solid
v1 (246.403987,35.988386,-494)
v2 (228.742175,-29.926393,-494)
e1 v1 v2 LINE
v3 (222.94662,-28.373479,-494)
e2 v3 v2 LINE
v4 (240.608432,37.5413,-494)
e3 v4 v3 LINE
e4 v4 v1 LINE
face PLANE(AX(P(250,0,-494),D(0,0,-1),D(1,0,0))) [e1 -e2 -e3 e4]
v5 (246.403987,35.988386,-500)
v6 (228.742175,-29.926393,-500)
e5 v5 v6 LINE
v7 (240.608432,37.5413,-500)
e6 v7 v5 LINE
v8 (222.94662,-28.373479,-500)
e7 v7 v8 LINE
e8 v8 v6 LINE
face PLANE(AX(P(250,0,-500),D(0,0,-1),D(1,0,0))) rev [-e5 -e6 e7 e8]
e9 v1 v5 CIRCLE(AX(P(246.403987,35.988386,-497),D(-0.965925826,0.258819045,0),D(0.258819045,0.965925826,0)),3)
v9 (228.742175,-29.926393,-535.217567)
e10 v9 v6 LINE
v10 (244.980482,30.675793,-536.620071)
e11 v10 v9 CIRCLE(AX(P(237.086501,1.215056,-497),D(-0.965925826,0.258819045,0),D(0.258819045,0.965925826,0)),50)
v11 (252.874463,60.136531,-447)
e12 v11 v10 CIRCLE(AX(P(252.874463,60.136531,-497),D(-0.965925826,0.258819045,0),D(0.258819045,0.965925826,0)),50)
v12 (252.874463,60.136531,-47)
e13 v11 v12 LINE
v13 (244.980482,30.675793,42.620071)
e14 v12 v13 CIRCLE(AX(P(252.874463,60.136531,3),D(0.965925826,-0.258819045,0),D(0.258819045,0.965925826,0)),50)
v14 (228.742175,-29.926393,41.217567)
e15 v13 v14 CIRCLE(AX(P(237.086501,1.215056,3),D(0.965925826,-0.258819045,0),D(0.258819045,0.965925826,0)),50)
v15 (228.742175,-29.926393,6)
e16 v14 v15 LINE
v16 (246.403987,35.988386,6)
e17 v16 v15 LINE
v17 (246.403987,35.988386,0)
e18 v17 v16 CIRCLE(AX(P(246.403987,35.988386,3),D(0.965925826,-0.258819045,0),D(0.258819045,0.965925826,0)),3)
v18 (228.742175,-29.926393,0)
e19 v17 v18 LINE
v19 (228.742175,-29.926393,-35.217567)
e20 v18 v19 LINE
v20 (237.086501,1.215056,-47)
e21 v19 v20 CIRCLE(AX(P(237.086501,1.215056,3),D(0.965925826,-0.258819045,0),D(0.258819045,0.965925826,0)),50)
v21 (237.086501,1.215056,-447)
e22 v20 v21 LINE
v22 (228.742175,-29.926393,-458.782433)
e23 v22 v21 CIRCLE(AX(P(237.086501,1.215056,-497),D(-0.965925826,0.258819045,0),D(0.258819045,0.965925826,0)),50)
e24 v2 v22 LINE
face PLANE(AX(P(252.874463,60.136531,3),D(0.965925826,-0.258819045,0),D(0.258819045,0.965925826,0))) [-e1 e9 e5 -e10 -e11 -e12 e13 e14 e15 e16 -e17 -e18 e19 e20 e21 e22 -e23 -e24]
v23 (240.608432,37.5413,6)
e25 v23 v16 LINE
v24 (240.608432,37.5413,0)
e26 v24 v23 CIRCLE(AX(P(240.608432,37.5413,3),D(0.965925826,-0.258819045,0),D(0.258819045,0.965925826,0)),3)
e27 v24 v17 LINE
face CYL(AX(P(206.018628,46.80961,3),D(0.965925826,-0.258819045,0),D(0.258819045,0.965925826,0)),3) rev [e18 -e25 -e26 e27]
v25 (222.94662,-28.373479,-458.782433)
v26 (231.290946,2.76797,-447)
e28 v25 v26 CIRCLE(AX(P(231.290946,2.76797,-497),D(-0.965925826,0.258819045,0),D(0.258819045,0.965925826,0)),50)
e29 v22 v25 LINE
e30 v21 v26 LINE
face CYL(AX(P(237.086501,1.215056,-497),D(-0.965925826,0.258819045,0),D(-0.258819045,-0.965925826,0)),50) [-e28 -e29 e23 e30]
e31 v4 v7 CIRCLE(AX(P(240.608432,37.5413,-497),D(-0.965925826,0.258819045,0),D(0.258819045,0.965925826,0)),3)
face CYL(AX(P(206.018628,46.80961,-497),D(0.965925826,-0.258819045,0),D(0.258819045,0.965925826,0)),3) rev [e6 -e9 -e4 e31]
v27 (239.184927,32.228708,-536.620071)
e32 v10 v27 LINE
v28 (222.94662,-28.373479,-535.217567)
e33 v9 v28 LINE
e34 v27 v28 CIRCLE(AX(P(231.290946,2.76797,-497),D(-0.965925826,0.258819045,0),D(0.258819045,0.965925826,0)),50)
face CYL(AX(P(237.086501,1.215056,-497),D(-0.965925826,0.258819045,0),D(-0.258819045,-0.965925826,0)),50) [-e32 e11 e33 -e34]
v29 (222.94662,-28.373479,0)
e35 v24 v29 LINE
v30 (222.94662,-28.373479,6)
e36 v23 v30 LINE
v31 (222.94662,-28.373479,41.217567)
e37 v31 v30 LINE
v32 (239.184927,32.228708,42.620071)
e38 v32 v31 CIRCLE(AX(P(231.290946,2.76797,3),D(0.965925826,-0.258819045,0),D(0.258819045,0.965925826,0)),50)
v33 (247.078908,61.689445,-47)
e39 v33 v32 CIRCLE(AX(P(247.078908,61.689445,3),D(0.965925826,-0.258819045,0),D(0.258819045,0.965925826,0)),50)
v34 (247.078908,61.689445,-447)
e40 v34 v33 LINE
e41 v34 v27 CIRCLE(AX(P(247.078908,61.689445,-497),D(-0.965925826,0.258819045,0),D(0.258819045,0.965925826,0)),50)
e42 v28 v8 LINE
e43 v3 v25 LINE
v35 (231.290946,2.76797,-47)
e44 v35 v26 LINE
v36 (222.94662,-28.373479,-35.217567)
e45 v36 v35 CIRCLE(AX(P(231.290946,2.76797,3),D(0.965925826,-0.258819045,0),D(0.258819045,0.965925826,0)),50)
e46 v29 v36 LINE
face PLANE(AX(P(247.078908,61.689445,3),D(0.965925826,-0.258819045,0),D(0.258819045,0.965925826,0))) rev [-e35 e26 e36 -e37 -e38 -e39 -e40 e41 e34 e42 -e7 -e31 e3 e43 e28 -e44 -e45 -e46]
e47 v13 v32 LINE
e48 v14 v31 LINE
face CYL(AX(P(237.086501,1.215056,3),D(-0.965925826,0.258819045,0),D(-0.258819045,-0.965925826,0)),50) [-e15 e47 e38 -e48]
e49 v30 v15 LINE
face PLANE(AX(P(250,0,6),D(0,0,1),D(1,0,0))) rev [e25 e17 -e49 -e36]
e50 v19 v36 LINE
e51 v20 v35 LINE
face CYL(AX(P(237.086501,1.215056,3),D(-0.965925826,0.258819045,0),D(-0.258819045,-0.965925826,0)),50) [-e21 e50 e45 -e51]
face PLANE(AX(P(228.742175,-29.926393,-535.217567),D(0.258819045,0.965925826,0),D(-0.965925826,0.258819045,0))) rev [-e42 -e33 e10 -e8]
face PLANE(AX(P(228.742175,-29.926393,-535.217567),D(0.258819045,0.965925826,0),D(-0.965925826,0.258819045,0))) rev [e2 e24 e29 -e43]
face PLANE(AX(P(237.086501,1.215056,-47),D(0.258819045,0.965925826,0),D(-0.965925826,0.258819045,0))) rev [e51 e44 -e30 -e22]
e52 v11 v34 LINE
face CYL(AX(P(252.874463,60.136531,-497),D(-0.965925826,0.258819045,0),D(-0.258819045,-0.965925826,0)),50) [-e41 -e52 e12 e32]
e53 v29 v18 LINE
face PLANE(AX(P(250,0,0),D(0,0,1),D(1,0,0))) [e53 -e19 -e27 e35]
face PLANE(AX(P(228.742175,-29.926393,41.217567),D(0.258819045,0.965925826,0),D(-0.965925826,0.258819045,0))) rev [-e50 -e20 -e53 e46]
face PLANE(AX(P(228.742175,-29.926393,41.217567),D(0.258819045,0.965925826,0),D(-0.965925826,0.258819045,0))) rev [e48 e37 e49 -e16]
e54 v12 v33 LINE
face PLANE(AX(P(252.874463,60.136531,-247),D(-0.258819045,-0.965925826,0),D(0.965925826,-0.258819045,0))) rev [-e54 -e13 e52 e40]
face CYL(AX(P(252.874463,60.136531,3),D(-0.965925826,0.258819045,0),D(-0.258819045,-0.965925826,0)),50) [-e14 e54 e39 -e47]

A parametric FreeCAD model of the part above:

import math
import FreeCAD as App
import Part
import Sketcher
Q = App.Units.Quantity

doc = App.newDocument("Part")
body = doc.addObject("PartDesign::Body", "Body")

# Sketch on XY plane
sketch1 = body.newObject("Sketcher::SketchObject", "Sketch")
sketch1.AttachmentSupport = (doc.getObject("XY_Plane"), [""])
sketch1.MapMode = "FlatFace"
sketch1.addGeometry([
    Part.LineSegment(App.Vector(-200, 0, 0), App.Vector(200, 0, 0)),  # 0
    Part.ArcOfCircle(Part.Circle(App.Vector(250, 0, 0), App.Vector(0, 0, 1), 50), math.radians(-180), math.radians(-143.130102)),  # 1
    Part.LineSegment(App.Vector(210, -30, 0), App.Vector(290, -30, 0)),  # 2
    Part.ArcOfCircle(Part.Circle(App.Vector(250, 0, 0), App.Vector(0, 0, 1), 50), math.radians(-36.869898), math.radians(37.589503)),  # 3
    Part.ArcOfCircle(Part.Circle(App.Vector(250, 61, 0), App.Vector(0, 0, 1), 50), math.radians(-37.589503), math.radians(71.560187)),  # 4
    Part.LineSegment(App.Vector(265.815415, 108.432822, 0), App.Vector(246.403987, 35.988386, 0)),  # 5
    Part.ArcOfCircle(Part.Circle(App.Vector(243.506209, 36.764843, 0), App.Vector(0, 0, 1), 3), math.radians(165), math.radians(345)),  # 6
    Part.LineSegment(App.Vector(240.608432, 37.5413, 0), App.Vector(260.01986, 109.985737, 0)),  # 7
    Part.ArcOfCircle(Part.Circle(App.Vector(250, 61, 0), App.Vector(0, 0, 1), 50), math.radians(78.439813), math.radians(180)),  # 8
    Part.LineSegment(App.Vector(200, 61, 0), App.Vector(140, 61, 0)),  # 9
    Part.LineSegment(App.Vector(140, 61, 0), App.Vector(150.784643, 58.387579, 0)),  # 10
    Part.LineSegment(App.Vector(150.784643, 58.387579, 0), App.Vector(139.047219, 52.742195, 0)),  # 11
    Part.LineSegment(App.Vector(139.047219, 52.742195, 0), App.Vector(160.085396, 40.245062, 0)),  # 12
    Part.LineSegment(App.Vector(160.085396, 40.245062, 0), App.Vector(137.597499, 43.437533, 0)),  # 13
    Part.LineSegment(App.Vector(137.597499, 43.437533, 0), App.Vector(153.154101, 34.194273, 0)),  # 14
    Part.LineSegment(App.Vector(153.154101, 34.194273, 0), App.Vector(138.262576, 30.304695, 0)),  # 15
    Part.LineSegment(App.Vector(138.262576, 30.304695, 0), App.Vector(144.152507, 26, 0)),  # 16
    Part.LineSegment(App.Vector(144.152507, 26, 0), App.Vector(150, 26, 0)),  # 17
    Part.ArcOfCircle(Part.Circle(App.Vector(150, 23, 0), App.Vector(0, 0, 1), 3), math.radians(-90), math.radians(90)),  # 18
    Part.LineSegment(App.Vector(150, 20, 0), App.Vector(-150, 20, 0)),  # 19
    Part.ArcOfCircle(Part.Circle(App.Vector(-150, 23, 0), App.Vector(0, 0, 1), 3), math.radians(90), math.radians(270)),  # 20
    Part.LineSegment(App.Vector(-150, 26, 0), App.Vector(-144.152507, 26, 0)),  # 21
    Part.LineSegment(App.Vector(-144.152507, 26, 0), App.Vector(-138.262576, 30.304695, 0)),  # 22
    Part.LineSegment(App.Vector(-138.262576, 30.304695, 0), App.Vector(-153.154101, 34.194273, 0)),  # 23
    Part.LineSegment(App.Vector(-153.154101, 34.194273, 0), App.Vector(-137.597499, 43.437533, 0)),  # 24
    Part.LineSegment(App.Vector(-137.597499, 43.437533, 0), App.Vector(-160.085396, 40.245062, 0)),  # 25
    Part.LineSegment(App.Vector(-160.085396, 40.245062, 0), App.Vector(-139.047219, 52.742195, 0)),  # 26
    Part.LineSegment(App.Vector(-139.047219, 52.742195, 0), App.Vector(-150.784643, 58.387579, 0)),  # 27
    Part.LineSegment(App.Vector(-150.784643, 58.387579, 0), App.Vector(-140, 61, 0)),  # 28
    Part.LineSegment(App.Vector(-140, 61, 0), App.Vector(-200, 61, 0)),  # 29
    Part.ArcOfCircle(Part.Circle(App.Vector(-250, 61, 0), App.Vector(0, 0, 1), 50), math.radians(0), math.radians(101.560187)),  # 30
    Part.LineSegment(App.Vector(-260.01986, 109.985737, 0), App.Vector(-240.608432, 37.5413, 0)),  # 31
    Part.ArcOfCircle(Part.Circle(App.Vector(-243.506209, 36.764843, 0), App.Vector(0, 0, 1), 3), math.radians(-165), math.radians(15)),  # 32
    Part.LineSegment(App.Vector(-246.403987, 35.988386, 0), App.Vector(-265.815415, 108.432822, 0)),  # 33
    Part.ArcOfCircle(Part.Circle(App.Vector(-250, 61, 0), App.Vector(0, 0, 1), 50), math.radians(108.439813), math.radians(217.589503)),  # 34
    Part.ArcOfCircle(Part.Circle(App.Vector(-250, 0, 0), App.Vector(0, 0, 1), 50), math.radians(142.410497), math.radians(216.869898)),  # 35
    Part.LineSegment(App.Vector(-290, -30, 0), App.Vector(-210, -30, 0)),  # 36
    Part.ArcOfCircle(Part.Circle(App.Vector(-250, 0, 0), App.Vector(0, 0, 1), 50), math.radians(-36.869898), math.radians(0)),  # 37
], False)
sketch1.addConstraint([
    Sketcher.Constraint("Coincident", 0, 2, 1, 1),
    Sketcher.Constraint("Coincident", 1, 2, 2, 1),
    Sketcher.Constraint("Coincident", 2, 2, 3, 1),
    Sketcher.Constraint("Coincident", 3, 2, 4, 1),
    Sketcher.Constraint("Coincident", 4, 2, 5, 1),
    Sketcher.Constraint("Tangent", 5, 2, 6, 2),
    Sketcher.Constraint("Tangent", 6, 1, 7, 1),
    Sketcher.Constraint("Coincident", 7, 2, 8, 1),
    Sketcher.Constraint("Coincident", 8, 2, 9, 1),
    Sketcher.Constraint("Coincident", 9, 2, 10, 1),
    Sketcher.Constraint("Coincident", 10, 2, 11, 1),
    Sketcher.Constraint("Coincident", 11, 2, 12, 1),
    Sketcher.Constraint("Coincident", 12, 2, 13, 1),
    Sketcher.Constraint("Coincident", 13, 2, 14, 1),
    Sketcher.Constraint("Coincident", 14, 2, 15, 1),
    Sketcher.Constraint("Coincident", 15, 2, 16, 1),
    Sketcher.Constraint("Coincident", 16, 2, 17, 1),
    Sketcher.Constraint("Tangent", 17, 2, 18, 2),
    Sketcher.Constraint("Tangent", 18, 1, 19, 1),
    Sketcher.Constraint("Tangent", 19, 2, 20, 2),
    Sketcher.Constraint("Tangent", 20, 1, 21, 1),
    Sketcher.Constraint("Coincident", 21, 2, 22, 1),
    Sketcher.Constraint("Coincident", 22, 2, 23, 1),
    Sketcher.Constraint("Coincident", 23, 2, 24, 1),
    Sketcher.Constraint("Coincident", 24, 2, 25, 1),
    Sketcher.Constraint("Coincident", 25, 2, 26, 1),
    Sketcher.Constraint("Coincident", 26, 2, 27, 1),
    Sketcher.Constraint("Coincident", 27, 2, 28, 1),
    Sketcher.Constraint("Coincident", 28, 2, 29, 1),
    Sketcher.Constraint("Coincident", 29, 2, 30, 1),
    Sketcher.Constraint("Coincident", 30, 2, 31, 1),
    Sketcher.Constraint("Tangent", 31, 2, 32, 2),
    Sketcher.Constraint("Tangent", 32, 1, 33, 1),
    Sketcher.Constraint("Coincident", 33, 2, 34, 1),
    Sketcher.Constraint("Coincident", 34, 2, 35, 1),
    Sketcher.Constraint("Coincident", 35, 2, 36, 1),
    Sketcher.Constraint("Coincident", 36, 2, 37, 1),
    Sketcher.Constraint("Coincident", 37, 2, 0, 1),
    Sketcher.Constraint("Horizontal", 0),
    Sketcher.Constraint("Horizontal", 2),
    Sketcher.Constraint("Horizontal", 9),
    Sketcher.Constraint("Horizontal", 17),
    Sketcher.Constraint("Horizontal", 19),
    Sketcher.Constraint("Horizontal", 21),
    Sketcher.Constraint("Horizontal", 29),
    Sketcher.Constraint("Horizontal", 36),
    Sketcher.Constraint("Coincident", 3, 3, 1, 3),
    Sketcher.Constraint("Coincident", 8, 3, 4, 3),
    Sketcher.Constraint("Coincident", 34, 3, 30, 3),
    Sketcher.Constraint("Coincident", 37, 3, 35, 3),
    Sketcher.Constraint("Equal", 1, 3),
    Sketcher.Constraint("Equal", 3, 4),
    Sketcher.Constraint("Equal", 4, 8),
    Sketcher.Constraint("Equal", 6, 18),
    Sketcher.Constraint("Equal", 18, 20),
    Sketcher.Constraint("Equal", 8, 30),
    Sketcher.Constraint("Equal", 20, 32),
    Sketcher.Constraint("Equal", 30, 34),
    Sketcher.Constraint("Equal", 34, 35),
    Sketcher.Constraint("Equal", 35, 37),
    Sketcher.Constraint("Symmetric", 1, 3, 35, 3, -1, 1),
    Sketcher.Constraint("Symmetric", 4, 3, 30, 3, -2),
    Sketcher.Constraint("Symmetric", 6, 3, 32, 3, -2),
    Sketcher.Constraint("Symmetric", 15, 2, 22, 2, -2),
    Sketcher.Constraint("Symmetric", 14, 2, 23, 2, -2),
    Sketcher.Constraint("Symmetric", 13, 2, 24, 2, -2),
    Sketcher.Constraint("Symmetric", 12, 2, 25, 2, -2),
    Sketcher.Constraint("Symmetric", 11, 2, 26, 2, -2),
    Sketcher.Constraint("Symmetric", 10, 2, 27, 2, -2),
    Sketcher.Constraint("Symmetric", 9, 2, 28, 2, -2),
    Sketcher.Constraint("Symmetric", 2, 2, 35, 2, -2),
    Sketcher.Constraint("PointOnObject", 0, 2, -1),
    Sketcher.Constraint("Parallel", 5, 7),
    Sketcher.Constraint("Parallel", 31, 33),
    Sketcher.Constraint("Horizontal", 34, 3, 8, 2),
    Sketcher.Constraint("Horizontal", 7, 2, 30, 2),
    Sketcher.Constraint("Vertical", 3, 3, 4, 3),
    Sketcher.Constraint("Equal", 17, 21),
    Sketcher.Constraint("Equal", 5, 7),
    Sketcher.Constraint("Equal", 16, 22),
    Sketcher.Constraint("Radius", 1, Q("50 mm")),
    Sketcher.Constraint("Radius", 6, Q("3 mm")),
    Sketcher.Constraint("DistanceX", 0, 1, 0, 2, Q("400 mm")),
    Sketcher.Constraint("DistanceX", 2, 1, 2, 2, Q("80 mm")),
    Sketcher.Constraint("DistanceX", 9, 2, 9, 1, Q("60 mm")),
    Sketcher.Constraint("DistanceX", 19, 2, 19, 1, Q("300 mm")),
    Sketcher.Constraint("Angle", 5, Q("-105 deg")),
    Sketcher.Constraint("Distance", 5, Q("75 mm")),
    Sketcher.Constraint("DistanceY", -1, 1, 4, 3, Q("61 mm")),
    Sketcher.Constraint("DistanceY", -1, 1, 18, 3, Q("23 mm")),
    Sketcher.Constraint("DistanceX", -1, 1, 13, 2, Q("137.597499 mm")),
    Sketcher.Constraint("DistanceX", -1, 1, 14, 2, Q("153.154101 mm")),
    Sketcher.Constraint("DistanceY", 15, 2, 11, 2, Q("22.4375 mm")),
    Sketcher.Constraint("DistanceX", 32, 3, 21, 2, Q("99.353702 mm")),
    Sketcher.Constraint("Distance", 14, Q("18.095462 mm")),
    Sketcher.Constraint("Distance", 16, Q("7.29532 mm")),
    Sketcher.Constraint("DistanceY", -1, 1, 10, 2, Q("58.387579 mm")),
    Sketcher.Constraint("DistanceX", -1, 1, 11, 2, Q("139.047219 mm")),
    Sketcher.Constraint("DistanceY", -1, 1, 12, 2, Q("40.245062 mm")),
    Sketcher.Constraint("DistanceX", 10, 2, 6, 1, Q("89.823788 mm")),
    Sketcher.Constraint("DistanceY", 13, 2, 11, 2, Q("9.304662 mm")),
    Sketcher.Constraint("DistanceY", 12, 2, 13, 2, Q("3.192471 mm")),
    Sketcher.Constraint("DistanceX", 15, 2, 12, 2, Q("21.82282 mm")),
])
pad1 = body.newObject("PartDesign::Pad", "Pad")
pad1.Profile = sketch1
pad1.Length = 6
body2 = doc.addObject("PartDesign::Body", "Body001")

# Sketch on an angled plane
sketch2 = body2.newObject("Sketcher::SketchObject", "Sketch001")
sketch2.Placement = App.Placement(App.Vector(215.105398, -57.637318, 0), App.Rotation(App.Vector(0, 0, -1), App.Vector(0.258819045, 0.965925826, 0), App.Vector(0.965925826, -0.258819045, 0), "ZXY"))
sketch2.addGeometry([
    Part.LineSegment(App.Vector(247, 62.536155, 0), App.Vector(247, 123.536155, 0)),  # 0
    Part.LineSegment(App.Vector(247, 123.536155, 0), App.Vector(47, 123.536155, 0)),  # 1
    Part.ArcOfCircle(Part.Circle(App.Vector(-3, 123.536155, 0), App.Vector(0, 0, 1), 50), math.radians(0), math.radians(90)),  # 2
    Part.ArcOfCircle(Part.Circle(App.Vector(-3, 123.536155, 0), App.Vector(0, 0, 1), 50), math.radians(90), math.radians(217.589503)),  # 3
    Part.ArcOfCircle(Part.Circle(App.Vector(-3, 62.536155, 0), App.Vector(0, 0, 1), 50), math.radians(142.410497), math.radians(220.150682)),  # 4
    Part.LineSegment(App.Vector(-41.217567, 30.296156, 0), App.Vector(35.217567, 30.296156, 0)),  # 5
    Part.ArcOfCircle(Part.Circle(App.Vector(-3, 62.536155, 0), App.Vector(0, 0, 1), 50), math.radians(-40.150682), math.radians(0)),  # 6
    Part.LineSegment(App.Vector(47, 62.536155, 0), App.Vector(247, 62.536155, 0)),  # 7
], False)
sketch2.addConstraint([
    Sketcher.Constraint("Coincident", 0, 2, 1, 1),
    Sketcher.Constraint("Coincident", 1, 2, 2, 1),
    Sketcher.Constraint("Tangent", 2, 2, 3, 1),
    Sketcher.Constraint("Coincident", 3, 2, 4, 1),
    Sketcher.Constraint("Coincident", 4, 2, 5, 1),
    Sketcher.Constraint("Coincident", 5, 2, 6, 1),
    Sketcher.Constraint("Coincident", 6, 2, 7, 1),
    Sketcher.Constraint("Coincident", 7, 2, 0, 1),
    Sketcher.Constraint("Vertical", 0),
    Sketcher.Constraint("Horizontal", 1),
    Sketcher.Constraint("Horizontal", 5),
    Sketcher.Constraint("Horizontal", 7),
    Sketcher.Constraint("Coincident", 6, 3, 4, 3),
    Sketcher.Constraint("Equal", 2, 3),
    Sketcher.Constraint("Equal", 3, 4),
    Sketcher.Constraint("Equal", 4, 6),
    Sketcher.Constraint("Horizontal", 3, 3, 0, 2),
    Sketcher.Constraint("Horizontal", 4, 3, 6, 2),
    Sketcher.Constraint("Vertical", 3, 3, 4, 3),
    Sketcher.Constraint("Vertical", 6, 3, 2, 2),
    Sketcher.Constraint("Radius", 2, Q("50 mm")),
    Sketcher.Constraint("DistanceX", 1, 2, 1, 1, Q("200 mm")),
    Sketcher.Constraint("DistanceY", 0, 1, 0, 2, Q("61 mm")),
    Sketcher.Constraint("DistanceX", 2, 3, -1, 1, Q("3 mm")),
    Sketcher.Constraint("DistanceY", 4, 2, 4, 3, Q("32.24 mm")),
    Sketcher.Constraint("DistanceY", -1, 1, 2, 3, Q("123.536155 mm")),
])
pad2 = body2.newObject("PartDesign::Pad", "Pad001")
pad2.Profile = sketch2
pad2.Length = 6
doc.recompute()

boolean = body2.newObject("PartDesign::Boolean", "Boolean")
boolean.Type = "Cut"
boolean.addObjects([body])

# Sketch on an angled plane
sketch3 = body2.newObject("Sketcher::SketchObject", "Sketch002")
sketch3.Placement = App.Placement(App.Vector(220.900953, -59.190232, 0), App.Rotation(App.Vector(0, 0, -1), App.Vector(0.258819045, 0.965925826, 0), App.Vector(0.965925826, -0.258819045, 0), "ZXY"))
sketch3.addGeometry([
    Part.LineSegment(App.Vector(-6, 98.536155, 0), App.Vector(-6, 92.597624, 0)),
    Part.LineSegment(App.Vector(-6, 92.597624, 0), App.Vector(0, 92.597624, 0)),
    Part.LineSegment(App.Vector(0, 92.597624, 0), App.Vector(0, 98.536155, 0)),
    Part.ArcOfCircle(Part.Circle(App.Vector(-3, 98.536155, 0), App.Vector(0, 0, 1), 3), math.radians(0), math.radians(180)),
], False)
sketch3.addConstraint([
    Sketcher.Constraint("Coincident", 0, 2, 1, 1),
    Sketcher.Constraint("Coincident", 1, 2, 2, 1),
    Sketcher.Constraint("Tangent", 2, 2, 3, 1),
    Sketcher.Constraint("Tangent", 3, 2, 0, 1),
    Sketcher.Constraint("Vertical", 0),
    Sketcher.Constraint("Horizontal", 1),
    Sketcher.Constraint("Vertical", 2),
    Sketcher.Constraint("PointOnObject", 1, 2, -2),
    Sketcher.Constraint("Radius", 3, Q("3 mm")),
    Sketcher.Constraint("DistanceY", 0, 2, 0, 1, Q("5.938531 mm")),
    Sketcher.Constraint("DistanceY", -1, 1, 3, 3, Q("98.536155 mm")),
])
pocket1 = body2.newObject("PartDesign::Pocket", "Pocket")
pocket1.Profile = sketch3
pocket1.Type = "ThroughAll"
body3 = doc.addObject("PartDesign::Body", "Body002")
doc.recompute()

body3.BaseFeature = body2
doc.recompute()

mirroring = doc.addObject("Part::Mirroring", "Mirroring")
mirroring.Source = body2
mirroring.Base = App.Vector(237.086501, 1.215056, -247)
mirroring.Normal = App.Vector(0, 0, 1)
body4 = doc.addObject("PartDesign::Body", "Body003")
body4.BaseFeature = mirroring
boolean2 = body3.newObject("PartDesign::Boolean", "Boolean001")
boolean2.Type = "Fuse"
boolean2.addObjects([body4])
doc.recompute()
mirroring.Visibility = False

doc.recompute()
